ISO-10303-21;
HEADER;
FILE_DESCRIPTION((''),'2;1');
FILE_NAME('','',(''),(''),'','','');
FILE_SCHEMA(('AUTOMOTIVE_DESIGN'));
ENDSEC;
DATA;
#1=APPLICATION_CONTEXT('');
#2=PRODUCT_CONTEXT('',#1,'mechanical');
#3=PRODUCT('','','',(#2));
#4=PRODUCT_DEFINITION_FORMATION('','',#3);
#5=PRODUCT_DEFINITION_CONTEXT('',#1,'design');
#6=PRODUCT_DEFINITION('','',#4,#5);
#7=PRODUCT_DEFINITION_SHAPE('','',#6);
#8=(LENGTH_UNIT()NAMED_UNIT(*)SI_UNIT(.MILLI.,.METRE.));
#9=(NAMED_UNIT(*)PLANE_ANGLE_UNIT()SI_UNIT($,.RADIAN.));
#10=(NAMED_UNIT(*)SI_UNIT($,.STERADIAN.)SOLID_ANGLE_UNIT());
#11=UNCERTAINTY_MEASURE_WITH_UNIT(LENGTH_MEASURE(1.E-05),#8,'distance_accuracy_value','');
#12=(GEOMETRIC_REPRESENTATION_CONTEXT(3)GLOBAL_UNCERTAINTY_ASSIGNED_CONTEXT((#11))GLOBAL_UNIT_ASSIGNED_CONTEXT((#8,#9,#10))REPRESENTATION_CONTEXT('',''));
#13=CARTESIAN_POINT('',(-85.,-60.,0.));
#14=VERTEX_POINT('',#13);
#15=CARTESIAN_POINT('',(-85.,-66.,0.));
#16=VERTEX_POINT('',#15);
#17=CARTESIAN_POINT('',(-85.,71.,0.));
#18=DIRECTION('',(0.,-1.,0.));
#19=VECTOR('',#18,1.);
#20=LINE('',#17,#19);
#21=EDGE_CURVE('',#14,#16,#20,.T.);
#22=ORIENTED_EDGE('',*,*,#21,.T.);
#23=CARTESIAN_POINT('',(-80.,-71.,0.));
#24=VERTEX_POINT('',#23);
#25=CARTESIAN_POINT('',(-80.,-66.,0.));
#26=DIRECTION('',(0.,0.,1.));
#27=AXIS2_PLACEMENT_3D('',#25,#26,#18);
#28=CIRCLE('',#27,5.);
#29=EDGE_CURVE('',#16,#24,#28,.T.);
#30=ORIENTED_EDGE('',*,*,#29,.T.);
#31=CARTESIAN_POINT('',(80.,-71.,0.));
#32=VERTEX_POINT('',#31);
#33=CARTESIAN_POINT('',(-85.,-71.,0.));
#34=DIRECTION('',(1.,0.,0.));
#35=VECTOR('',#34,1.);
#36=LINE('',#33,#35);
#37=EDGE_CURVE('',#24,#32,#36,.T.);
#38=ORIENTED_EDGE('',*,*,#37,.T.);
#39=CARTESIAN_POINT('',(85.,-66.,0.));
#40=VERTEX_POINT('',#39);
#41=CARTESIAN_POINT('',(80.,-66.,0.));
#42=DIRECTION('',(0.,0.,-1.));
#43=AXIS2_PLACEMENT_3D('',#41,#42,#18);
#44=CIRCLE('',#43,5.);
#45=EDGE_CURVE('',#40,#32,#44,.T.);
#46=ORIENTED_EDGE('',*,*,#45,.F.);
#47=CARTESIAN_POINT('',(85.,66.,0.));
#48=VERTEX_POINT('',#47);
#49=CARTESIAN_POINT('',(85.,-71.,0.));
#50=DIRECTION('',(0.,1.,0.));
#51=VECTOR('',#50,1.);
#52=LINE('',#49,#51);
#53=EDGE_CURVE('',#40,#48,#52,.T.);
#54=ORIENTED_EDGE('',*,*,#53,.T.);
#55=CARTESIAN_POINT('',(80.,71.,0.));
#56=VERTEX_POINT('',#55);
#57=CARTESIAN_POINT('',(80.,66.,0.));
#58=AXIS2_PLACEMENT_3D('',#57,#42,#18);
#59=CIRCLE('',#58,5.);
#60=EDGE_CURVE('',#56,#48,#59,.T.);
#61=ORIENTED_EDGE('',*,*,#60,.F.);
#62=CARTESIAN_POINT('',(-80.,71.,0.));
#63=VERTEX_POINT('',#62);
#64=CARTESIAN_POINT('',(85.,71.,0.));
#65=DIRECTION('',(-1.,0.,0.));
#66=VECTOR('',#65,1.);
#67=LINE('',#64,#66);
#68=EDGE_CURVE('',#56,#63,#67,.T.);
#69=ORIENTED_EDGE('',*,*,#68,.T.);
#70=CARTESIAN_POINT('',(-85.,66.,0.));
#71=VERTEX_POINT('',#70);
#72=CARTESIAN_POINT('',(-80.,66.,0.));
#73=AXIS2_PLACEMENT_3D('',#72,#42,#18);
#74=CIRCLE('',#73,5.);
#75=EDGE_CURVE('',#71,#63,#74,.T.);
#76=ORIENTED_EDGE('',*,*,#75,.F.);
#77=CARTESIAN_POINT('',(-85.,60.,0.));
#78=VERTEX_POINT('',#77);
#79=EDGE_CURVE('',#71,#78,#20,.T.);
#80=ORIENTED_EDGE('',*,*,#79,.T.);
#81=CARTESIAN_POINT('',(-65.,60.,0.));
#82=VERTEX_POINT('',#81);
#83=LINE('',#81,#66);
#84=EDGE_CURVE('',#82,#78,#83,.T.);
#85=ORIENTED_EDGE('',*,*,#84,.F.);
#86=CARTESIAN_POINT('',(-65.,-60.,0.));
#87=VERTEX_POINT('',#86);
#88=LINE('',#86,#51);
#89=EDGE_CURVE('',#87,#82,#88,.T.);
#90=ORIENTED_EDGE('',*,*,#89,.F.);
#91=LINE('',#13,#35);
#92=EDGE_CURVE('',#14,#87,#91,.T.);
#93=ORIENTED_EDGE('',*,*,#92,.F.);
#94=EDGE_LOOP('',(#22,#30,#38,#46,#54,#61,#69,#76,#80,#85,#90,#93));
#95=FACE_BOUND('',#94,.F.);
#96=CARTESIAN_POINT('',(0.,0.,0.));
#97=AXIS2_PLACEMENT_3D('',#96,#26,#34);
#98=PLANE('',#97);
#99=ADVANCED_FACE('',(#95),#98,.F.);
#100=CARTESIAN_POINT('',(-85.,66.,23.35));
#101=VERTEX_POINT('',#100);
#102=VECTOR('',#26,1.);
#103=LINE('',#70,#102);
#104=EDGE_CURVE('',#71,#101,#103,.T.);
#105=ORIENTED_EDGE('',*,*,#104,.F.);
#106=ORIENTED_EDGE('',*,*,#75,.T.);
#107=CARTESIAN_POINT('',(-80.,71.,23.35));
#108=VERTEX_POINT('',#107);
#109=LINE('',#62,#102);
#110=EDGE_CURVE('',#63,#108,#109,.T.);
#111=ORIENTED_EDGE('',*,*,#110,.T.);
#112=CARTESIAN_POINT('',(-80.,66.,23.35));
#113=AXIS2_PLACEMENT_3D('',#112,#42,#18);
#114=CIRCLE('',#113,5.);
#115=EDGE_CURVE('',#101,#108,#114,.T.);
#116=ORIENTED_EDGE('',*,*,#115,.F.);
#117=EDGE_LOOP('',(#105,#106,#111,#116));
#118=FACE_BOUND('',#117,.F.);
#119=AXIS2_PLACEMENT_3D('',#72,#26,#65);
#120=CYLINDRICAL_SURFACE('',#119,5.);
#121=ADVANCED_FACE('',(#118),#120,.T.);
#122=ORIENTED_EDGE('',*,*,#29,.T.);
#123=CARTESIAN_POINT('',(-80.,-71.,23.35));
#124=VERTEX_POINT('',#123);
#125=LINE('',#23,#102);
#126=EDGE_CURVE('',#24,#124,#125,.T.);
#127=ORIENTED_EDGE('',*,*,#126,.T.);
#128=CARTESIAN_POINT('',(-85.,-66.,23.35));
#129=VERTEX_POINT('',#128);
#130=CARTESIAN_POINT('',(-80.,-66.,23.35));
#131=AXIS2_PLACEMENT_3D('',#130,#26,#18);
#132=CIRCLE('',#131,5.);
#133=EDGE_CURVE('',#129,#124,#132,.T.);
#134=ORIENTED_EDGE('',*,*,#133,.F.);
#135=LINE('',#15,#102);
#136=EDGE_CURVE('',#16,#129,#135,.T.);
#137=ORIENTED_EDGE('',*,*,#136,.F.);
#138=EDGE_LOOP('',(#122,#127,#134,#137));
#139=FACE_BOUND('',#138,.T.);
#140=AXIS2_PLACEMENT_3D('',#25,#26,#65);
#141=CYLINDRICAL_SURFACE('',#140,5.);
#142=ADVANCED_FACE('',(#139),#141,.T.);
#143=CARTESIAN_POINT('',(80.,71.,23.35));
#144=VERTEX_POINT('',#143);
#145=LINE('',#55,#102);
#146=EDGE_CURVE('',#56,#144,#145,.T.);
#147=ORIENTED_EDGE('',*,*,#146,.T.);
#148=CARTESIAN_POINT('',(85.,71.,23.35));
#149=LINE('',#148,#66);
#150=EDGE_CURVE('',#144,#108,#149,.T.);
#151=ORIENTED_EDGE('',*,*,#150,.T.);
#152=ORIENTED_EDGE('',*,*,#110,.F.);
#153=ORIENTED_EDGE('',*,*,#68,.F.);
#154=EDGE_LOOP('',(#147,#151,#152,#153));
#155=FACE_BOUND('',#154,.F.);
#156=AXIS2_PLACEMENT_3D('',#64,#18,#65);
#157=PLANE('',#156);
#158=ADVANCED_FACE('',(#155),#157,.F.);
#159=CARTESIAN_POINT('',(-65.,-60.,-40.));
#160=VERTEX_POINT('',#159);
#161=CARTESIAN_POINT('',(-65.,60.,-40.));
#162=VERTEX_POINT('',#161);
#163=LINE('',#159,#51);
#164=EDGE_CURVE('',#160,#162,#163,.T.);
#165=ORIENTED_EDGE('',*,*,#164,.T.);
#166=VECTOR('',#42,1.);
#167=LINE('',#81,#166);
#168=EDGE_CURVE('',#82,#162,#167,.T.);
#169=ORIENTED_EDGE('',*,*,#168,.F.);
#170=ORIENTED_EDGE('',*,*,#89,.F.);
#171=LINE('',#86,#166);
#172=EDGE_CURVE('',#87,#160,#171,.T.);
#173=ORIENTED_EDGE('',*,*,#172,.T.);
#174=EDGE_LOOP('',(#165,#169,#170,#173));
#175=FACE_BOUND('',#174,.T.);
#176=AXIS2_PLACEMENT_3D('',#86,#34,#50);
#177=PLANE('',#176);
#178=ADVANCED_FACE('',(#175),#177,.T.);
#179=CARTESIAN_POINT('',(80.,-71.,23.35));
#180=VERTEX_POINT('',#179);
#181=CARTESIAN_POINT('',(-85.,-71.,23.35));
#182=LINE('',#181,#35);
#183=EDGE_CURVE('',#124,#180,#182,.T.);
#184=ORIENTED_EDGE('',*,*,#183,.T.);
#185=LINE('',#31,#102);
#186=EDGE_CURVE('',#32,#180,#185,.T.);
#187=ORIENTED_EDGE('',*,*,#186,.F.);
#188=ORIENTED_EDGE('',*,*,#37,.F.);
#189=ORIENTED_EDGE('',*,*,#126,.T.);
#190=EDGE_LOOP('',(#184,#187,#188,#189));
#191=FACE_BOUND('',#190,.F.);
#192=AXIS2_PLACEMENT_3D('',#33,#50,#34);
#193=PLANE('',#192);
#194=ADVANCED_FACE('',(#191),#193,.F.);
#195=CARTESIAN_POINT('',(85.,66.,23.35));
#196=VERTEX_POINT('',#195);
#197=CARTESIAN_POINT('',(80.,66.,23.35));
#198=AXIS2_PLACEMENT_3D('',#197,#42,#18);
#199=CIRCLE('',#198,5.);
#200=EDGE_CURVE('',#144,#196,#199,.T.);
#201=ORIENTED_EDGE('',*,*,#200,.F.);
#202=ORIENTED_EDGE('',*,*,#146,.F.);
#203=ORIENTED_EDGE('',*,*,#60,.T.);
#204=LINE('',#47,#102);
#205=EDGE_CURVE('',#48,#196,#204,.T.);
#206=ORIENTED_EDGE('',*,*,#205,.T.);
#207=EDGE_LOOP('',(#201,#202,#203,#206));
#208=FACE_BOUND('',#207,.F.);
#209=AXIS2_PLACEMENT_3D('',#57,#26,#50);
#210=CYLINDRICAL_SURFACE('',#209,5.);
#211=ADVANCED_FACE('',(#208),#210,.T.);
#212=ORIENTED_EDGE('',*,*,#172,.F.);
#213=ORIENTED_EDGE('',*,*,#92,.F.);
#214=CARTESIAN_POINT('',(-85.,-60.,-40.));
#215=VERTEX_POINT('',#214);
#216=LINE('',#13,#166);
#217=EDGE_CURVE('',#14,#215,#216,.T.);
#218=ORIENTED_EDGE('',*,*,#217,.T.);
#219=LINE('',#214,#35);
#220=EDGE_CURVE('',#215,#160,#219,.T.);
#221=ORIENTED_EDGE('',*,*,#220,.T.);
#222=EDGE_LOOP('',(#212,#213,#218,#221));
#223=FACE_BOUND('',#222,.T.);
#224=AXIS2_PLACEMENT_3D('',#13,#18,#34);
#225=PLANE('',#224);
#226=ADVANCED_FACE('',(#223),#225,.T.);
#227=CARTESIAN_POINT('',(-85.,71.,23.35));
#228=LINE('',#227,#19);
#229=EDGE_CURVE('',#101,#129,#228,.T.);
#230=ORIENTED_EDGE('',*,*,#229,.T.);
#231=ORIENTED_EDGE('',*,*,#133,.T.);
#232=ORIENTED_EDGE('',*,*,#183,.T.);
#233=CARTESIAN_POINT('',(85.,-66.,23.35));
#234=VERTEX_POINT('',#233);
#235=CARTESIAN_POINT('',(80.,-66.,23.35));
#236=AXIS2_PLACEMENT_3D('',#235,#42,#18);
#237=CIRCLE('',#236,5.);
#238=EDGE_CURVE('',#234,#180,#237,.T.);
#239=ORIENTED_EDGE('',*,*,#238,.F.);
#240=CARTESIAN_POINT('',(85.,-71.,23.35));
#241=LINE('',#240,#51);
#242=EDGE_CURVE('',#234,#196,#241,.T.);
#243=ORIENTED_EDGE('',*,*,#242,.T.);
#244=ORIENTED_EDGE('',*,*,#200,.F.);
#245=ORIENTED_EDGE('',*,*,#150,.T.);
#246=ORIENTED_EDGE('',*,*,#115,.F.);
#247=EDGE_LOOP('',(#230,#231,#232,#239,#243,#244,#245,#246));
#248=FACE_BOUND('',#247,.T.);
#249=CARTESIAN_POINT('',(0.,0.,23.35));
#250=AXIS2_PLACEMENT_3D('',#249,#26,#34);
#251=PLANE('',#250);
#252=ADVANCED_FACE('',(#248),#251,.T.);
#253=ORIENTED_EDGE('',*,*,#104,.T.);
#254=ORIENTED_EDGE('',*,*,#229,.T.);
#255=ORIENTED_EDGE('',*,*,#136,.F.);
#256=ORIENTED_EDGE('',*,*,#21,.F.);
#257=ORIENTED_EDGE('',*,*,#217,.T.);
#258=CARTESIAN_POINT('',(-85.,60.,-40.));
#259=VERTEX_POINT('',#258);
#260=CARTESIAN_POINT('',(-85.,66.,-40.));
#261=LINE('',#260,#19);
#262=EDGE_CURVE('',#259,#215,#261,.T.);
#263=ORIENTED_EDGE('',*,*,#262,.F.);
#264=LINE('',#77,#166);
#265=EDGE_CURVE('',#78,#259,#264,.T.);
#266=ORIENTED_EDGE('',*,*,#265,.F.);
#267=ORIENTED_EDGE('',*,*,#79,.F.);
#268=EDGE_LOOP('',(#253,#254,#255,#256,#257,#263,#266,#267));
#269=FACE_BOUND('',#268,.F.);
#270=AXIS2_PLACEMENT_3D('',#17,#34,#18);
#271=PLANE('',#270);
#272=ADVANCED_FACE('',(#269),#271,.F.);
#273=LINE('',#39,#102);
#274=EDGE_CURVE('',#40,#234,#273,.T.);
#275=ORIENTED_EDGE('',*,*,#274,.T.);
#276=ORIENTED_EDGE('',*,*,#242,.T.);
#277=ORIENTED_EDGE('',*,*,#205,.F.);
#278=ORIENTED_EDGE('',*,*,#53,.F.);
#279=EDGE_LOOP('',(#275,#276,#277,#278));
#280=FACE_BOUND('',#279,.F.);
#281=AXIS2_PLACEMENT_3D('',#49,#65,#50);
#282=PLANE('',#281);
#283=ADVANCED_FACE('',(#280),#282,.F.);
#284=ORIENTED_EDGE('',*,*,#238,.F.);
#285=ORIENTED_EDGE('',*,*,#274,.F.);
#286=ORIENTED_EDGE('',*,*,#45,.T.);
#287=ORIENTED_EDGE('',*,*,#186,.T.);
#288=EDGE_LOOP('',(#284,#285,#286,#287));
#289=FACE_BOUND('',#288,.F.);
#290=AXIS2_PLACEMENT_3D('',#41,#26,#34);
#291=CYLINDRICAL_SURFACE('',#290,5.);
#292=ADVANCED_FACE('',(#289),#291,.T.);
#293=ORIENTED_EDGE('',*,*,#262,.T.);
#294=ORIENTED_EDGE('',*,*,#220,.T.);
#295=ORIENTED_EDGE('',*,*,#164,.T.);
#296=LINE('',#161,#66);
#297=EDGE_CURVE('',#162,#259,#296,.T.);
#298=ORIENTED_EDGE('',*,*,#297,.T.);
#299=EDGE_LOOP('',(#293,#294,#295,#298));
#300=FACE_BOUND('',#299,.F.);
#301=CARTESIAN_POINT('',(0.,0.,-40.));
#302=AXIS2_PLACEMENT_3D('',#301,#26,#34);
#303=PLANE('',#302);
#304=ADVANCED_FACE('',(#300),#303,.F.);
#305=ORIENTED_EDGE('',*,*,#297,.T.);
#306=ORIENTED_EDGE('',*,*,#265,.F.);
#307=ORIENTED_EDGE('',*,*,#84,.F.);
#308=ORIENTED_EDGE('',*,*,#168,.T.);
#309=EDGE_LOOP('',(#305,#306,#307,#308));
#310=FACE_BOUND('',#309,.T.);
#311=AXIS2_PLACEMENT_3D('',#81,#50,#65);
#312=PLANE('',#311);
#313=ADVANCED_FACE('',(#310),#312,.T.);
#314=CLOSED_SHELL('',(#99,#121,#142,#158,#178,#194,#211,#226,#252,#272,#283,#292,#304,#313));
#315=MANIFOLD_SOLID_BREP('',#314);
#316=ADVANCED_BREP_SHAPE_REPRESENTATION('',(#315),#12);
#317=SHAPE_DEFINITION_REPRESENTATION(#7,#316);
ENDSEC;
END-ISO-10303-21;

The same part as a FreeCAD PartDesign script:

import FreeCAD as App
import Part
import Sketcher
from FreeCAD import Vector
Q = App.Units.Quantity


def edges_at(feature, points):
    """Names of the edges that pass closest to the given points."""
    edges = feature.Shape.Edges
    near = lambda p: min(range(len(edges)), key=lambda i: edges[i].distToShape(Part.Vertex(*p))[0])
    return sorted({f"Edge{near(p) + 1}" for p in points})


def add_polygon(sketch, points):
    """Adds a closed chain of lines whose ends are joined by coincident constraints."""
    first, n = sketch.GeometryCount, len(points)
    for a, b in zip(points, points[1:] + points[:1]):
        sketch.addGeometry(Part.LineSegment(App.Vector(*a, 0), App.Vector(*b, 0)), False)
    for i in range(n):
        sketch.addConstraint(Sketcher.Constraint("Coincident", first + i, 2, first + (i + 1) % n, 1))

doc = App.newDocument("Part")
body = doc.addObject("PartDesign::Body", "Body")

sketch1 = doc.addObject("Sketcher::SketchObject", "Sketch")
body.addObject(sketch1)
sketch1.AttachmentSupport = (doc.XY_Plane, [""])
sketch1.MapMode = "FlatFace"
add_polygon(sketch1, [(-85, 71), (-85, -71), (85, -71), (85, 71)])
sketch1.addConstraint([
    Sketcher.Constraint("Vertical", 0),
    Sketcher.Constraint("Horizontal", 1),
    Sketcher.Constraint("Vertical", 2),
    Sketcher.Constraint("Horizontal", 3),
    Sketcher.Constraint("Symmetric", 0, 2, 2, 2, -1, 1),
    Sketcher.Constraint("DistanceX", 1, 1, 1, 2, Q("170 mm")),
    Sketcher.Constraint("DistanceY", 0, 2, 0, 1, Q("142 mm")),
])
pad1 = doc.addObject("PartDesign::Pad", "Pad")
body.addObject(pad1)
pad1.Profile = sketch1
pad1.Length = 23.35
doc.recompute()

fillet = doc.addObject("PartDesign::Fillet", "Fillet")
body.addObject(fillet)
fillet.Base = (pad1, edges_at(pad1, [
    (-85, 71, 11.675),
    (-85, -71, 11.675),
    (85, 71, 11.675),
    (85, -71, 11.675),
]))
fillet.Radius = 5

sketch2 = doc.addObject("Sketcher::SketchObject", "Sketch001")
body.addObject(sketch2)
sketch2.AttachmentSupport = (doc.XY_Plane, [""])
sketch2.MapMode = "FlatFace"
add_polygon(sketch2, [(-85, 60), (-85, -60), (-65, -60), (-65, 60)])
sketch2.addConstraint([
    Sketcher.Constraint("Vertical", 0),
    Sketcher.Constraint("Horizontal", 1),
    Sketcher.Constraint("Vertical", 2),
    Sketcher.Constraint("Horizontal", 3),
    Sketcher.Constraint("DistanceX", 1, 1, 1, 2, Q("20 mm")),
    Sketcher.Constraint("DistanceY", 0, 2, 0, 1, Q("120 mm")),
    Sketcher.Constraint("DistanceX", 0, 2, -1, 1, Q("85 mm")),
    Sketcher.Constraint("DistanceY", 0, 2, -1, 1, Q("60 mm")),
])
pad2 = doc.addObject("PartDesign::Pad", "Pad001")
body.addObject(pad2)
pad2.Profile = sketch2
pad2.Length = 40
pad2.Reversed = True

doc.recompute()
